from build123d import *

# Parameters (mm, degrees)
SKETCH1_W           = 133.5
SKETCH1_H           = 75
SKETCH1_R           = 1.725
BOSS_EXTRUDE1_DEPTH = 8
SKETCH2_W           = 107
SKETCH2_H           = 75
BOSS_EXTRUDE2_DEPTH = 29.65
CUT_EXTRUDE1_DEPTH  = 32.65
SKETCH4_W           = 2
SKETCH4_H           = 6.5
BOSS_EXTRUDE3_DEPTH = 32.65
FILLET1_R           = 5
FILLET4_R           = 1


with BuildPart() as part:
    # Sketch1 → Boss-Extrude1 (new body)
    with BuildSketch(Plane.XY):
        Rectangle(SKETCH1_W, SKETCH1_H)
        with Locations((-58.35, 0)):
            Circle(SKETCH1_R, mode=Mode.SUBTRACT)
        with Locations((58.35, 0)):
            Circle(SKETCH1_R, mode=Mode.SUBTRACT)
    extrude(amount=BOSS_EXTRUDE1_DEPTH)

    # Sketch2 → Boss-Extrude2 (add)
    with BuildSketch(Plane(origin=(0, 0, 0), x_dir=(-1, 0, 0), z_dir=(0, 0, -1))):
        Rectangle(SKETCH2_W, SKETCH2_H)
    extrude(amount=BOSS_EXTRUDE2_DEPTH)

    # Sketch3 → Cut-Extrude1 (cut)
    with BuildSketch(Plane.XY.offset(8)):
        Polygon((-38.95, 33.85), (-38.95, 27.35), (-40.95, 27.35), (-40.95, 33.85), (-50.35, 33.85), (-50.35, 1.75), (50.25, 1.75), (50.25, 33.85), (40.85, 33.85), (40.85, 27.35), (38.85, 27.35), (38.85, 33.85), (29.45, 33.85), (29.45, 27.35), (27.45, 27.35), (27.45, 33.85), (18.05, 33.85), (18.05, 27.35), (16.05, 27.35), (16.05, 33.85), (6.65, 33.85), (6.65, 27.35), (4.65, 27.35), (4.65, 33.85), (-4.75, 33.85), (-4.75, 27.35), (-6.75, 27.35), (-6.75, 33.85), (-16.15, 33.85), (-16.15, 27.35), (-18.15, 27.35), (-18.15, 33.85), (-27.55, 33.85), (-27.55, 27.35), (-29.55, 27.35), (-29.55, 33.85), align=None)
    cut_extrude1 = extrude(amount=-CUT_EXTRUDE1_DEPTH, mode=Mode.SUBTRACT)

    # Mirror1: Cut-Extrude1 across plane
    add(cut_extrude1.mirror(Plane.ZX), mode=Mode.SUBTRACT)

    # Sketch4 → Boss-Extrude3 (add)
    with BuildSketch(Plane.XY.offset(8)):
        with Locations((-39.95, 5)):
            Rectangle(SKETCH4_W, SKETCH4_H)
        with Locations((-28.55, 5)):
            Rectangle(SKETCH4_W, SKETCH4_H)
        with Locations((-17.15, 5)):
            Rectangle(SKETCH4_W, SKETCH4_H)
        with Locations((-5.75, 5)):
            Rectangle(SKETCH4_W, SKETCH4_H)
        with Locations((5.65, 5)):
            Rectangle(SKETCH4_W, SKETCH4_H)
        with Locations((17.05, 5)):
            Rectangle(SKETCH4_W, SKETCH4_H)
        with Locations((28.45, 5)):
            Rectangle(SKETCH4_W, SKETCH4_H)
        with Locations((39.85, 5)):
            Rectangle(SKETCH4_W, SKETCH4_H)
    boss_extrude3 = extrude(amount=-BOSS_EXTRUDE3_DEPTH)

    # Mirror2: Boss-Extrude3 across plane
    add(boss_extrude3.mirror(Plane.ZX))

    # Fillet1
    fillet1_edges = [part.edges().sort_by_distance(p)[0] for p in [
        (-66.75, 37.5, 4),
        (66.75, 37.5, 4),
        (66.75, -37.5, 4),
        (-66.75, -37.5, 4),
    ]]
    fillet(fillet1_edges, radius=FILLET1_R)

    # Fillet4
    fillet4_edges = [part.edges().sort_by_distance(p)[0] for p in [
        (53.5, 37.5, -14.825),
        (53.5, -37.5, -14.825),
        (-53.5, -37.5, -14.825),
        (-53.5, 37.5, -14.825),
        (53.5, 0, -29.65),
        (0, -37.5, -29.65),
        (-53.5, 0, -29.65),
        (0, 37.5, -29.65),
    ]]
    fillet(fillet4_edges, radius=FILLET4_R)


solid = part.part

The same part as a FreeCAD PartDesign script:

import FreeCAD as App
import Part
import Sketcher
from FreeCAD import Vector
Q = App.Units.Quantity


def edges_at(feature, points):
    """Names of the edges that pass closest to the given points."""
    edges = feature.Shape.Edges
    near = lambda p: min(range(len(edges)), key=lambda i: edges[i].distToShape(Part.Vertex(*p))[0])
    return sorted({f"Edge{near(p) + 1}" for p in points})

doc = App.newDocument("Part")
body = doc.addObject("PartDesign::Body", "Body")

sketch1 = body.newObject("Sketcher::SketchObject", "Sketch")
sketch1.AttachmentSupport = (doc.getObject("XY_Plane"), [""])
sketch1.MapMode = "FlatFace"
sketch1.addGeometry([
    Part.LineSegment(Vector(-66.8, 37.5, 0), Vector(-66.8, -37.5, 0)),
    Part.LineSegment(Vector(-66.8, -37.5, 0), Vector(66.8, -37.5, 0)),
    Part.LineSegment(Vector(66.8, -37.5, 0), Vector(66.8, 37.5, 0)),
    Part.LineSegment(Vector(66.8, 37.5, 0), Vector(-66.8, 37.5, 0)),
    Part.Circle(Vector(-58.4, 0, 0), Vector(0, 0, 1), 1.7),
    Part.Circle(Vector(58.4, 0, 0), Vector(0, 0, 1), 1.7),
], False)
sketch1.addConstraint([
    Sketcher.Constraint("Coincident", 0, 2, 1, 1),
    Sketcher.Constraint("Coincident", 1, 2, 2, 1),
    Sketcher.Constraint("Coincident", 2, 2, 3, 1),
    Sketcher.Constraint("Coincident", 3, 2, 0, 1),
    Sketcher.Constraint("Vertical", 0),
    Sketcher.Constraint("Horizontal", 1),
    Sketcher.Constraint("Vertical", 2),
    Sketcher.Constraint("Horizontal", 3),
    Sketcher.Constraint("Equal", 4, 5),
    Sketcher.Constraint("Symmetric", 4, 3, 5, 3, -1, 1),
    Sketcher.Constraint("Symmetric", 0, 2, 2, 2, -1, 1),
    Sketcher.Constraint("PointOnObject", 4, 3, -1),
    Sketcher.Constraint("Diameter", 4, Q("3.45 mm")),
    Sketcher.Constraint("DistanceY", 0, 2, 0, 1, Q("75 mm")),
    Sketcher.Constraint("DistanceX", 1, 1, 1, 2, Q("133.5 mm")),
    Sketcher.Constraint("DistanceX", 4, 3, 5, 3, Q("116.7 mm")),
])
pad1 = body.newObject("PartDesign::Pad", "Pad")
pad1.Profile = sketch1
pad1.Length = 8

sketch2 = body.newObject("Sketcher::SketchObject", "Sketch001")
sketch2.AttachmentSupport = (doc.getObject("XY_Plane"), [""])
sketch2.MapMode = "FlatFace"
sketch2.addGeometry([
    Part.LineSegment(Vector(54, 38, 0), Vector(54, -38, 0)),
    Part.LineSegment(Vector(54, -38, 0), Vector(-54, -38, 0)),
    Part.LineSegment(Vector(-54, -38, 0), Vector(-54, 38, 0)),
    Part.LineSegment(Vector(-54, 38, 0), Vector(54, 38, 0)),
], False)
sketch2.addConstraint([
    Sketcher.Constraint("Coincident", 0, 2, 1, 1),
    Sketcher.Constraint("Coincident", 1, 2, 2, 1),
    Sketcher.Constraint("Coincident", 2, 2, 3, 1),
    Sketcher.Constraint("Coincident", 3, 2, 0, 1),
    Sketcher.Constraint("Vertical", 0),
    Sketcher.Constraint("Horizontal", 1),
    Sketcher.Constraint("Vertical", 2),
    Sketcher.Constraint("Horizontal", 3),
    Sketcher.Constraint("Symmetric", 0, 2, 2, 2, -1, 1),
    Sketcher.Constraint("DistanceX", 1, 2, 1, 1, Q("107 mm")),
    Sketcher.Constraint("DistanceY", 0, 2, 0, 1, Q("75 mm")),
])
pad2 = body.newObject("PartDesign::Pad", "Pad001")
pad2.Profile = sketch2
pad2.Length = 29.65
pad2.Reversed = True

sketch3 = body.newObject("Sketcher::SketchObject", "Sketch002")
sketch3.AttachmentSupport = (doc.getObject("XY_Plane"), [""])
sketch3.MapMode = "FlatFace"
sketch3.AttachmentOffset = App.Placement(Vector(0, 0, 8), App.Rotation())
sketch3.addGeometry([
    Part.LineSegment(Vector(-39, 33.9, 0), Vector(-39, 27.4, 0)),
    Part.LineSegment(Vector(-39, 27.4, 0), Vector(-41, 27.4, 0)),
    Part.LineSegment(Vector(-41, 27.4, 0), Vector(-41, 33.9, 0)),
    Part.LineSegment(Vector(-41, 33.9, 0), Vector(-50.4, 33.9, 0)),
    Part.LineSegment(Vector(-50.4, 33.9, 0), Vector(-50.4, 1.8, 0)),
    Part.LineSegment(Vector(-50.4, 1.8, 0), Vector(50.2, 1.8, 0)),
    Part.LineSegment(Vector(50.2, 1.8, 0), Vector(50.2, 33.9, 0)),
    Part.LineSegment(Vector(50.2, 33.9, 0), Vector(40.9, 33.9, 0)),
    Part.LineSegment(Vector(40.9, 33.9, 0), Vector(40.9, 27.4, 0)),
    Part.LineSegment(Vector(40.9, 27.4, 0), Vector(38.9, 27.4, 0)),
    Part.LineSegment(Vector(38.9, 27.4, 0), Vector(38.9, 33.9, 0)),
    Part.LineSegment(Vector(38.9, 33.9, 0), Vector(29.4, 33.9, 0)),
    Part.LineSegment(Vector(29.4, 33.9, 0), Vector(29.4, 27.4, 0)),
    Part.LineSegment(Vector(29.4, 27.4, 0), Vector(27.4, 27.4, 0)),
    Part.LineSegment(Vector(27.4, 27.4, 0), Vector(27.4, 33.9, 0)),
    Part.LineSegment(Vector(27.4, 33.9, 0), Vector(18.1, 33.9, 0)),
    Part.LineSegment(Vector(18.1, 33.9, 0), Vector(18.1, 27.4, 0)),
    Part.LineSegment(Vector(18.1, 27.4, 0), Vector(16.1, 27.4, 0)),
    Part.LineSegment(Vector(16.1, 27.4, 0), Vector(16.1, 33.9, 0)),
    Part.LineSegment(Vector(16.1, 33.9, 0), Vector(6.7, 33.9, 0)),
    Part.LineSegment(Vector(6.7, 33.9, 0), Vector(6.7, 27.4, 0)),
    Part.LineSegment(Vector(6.7, 27.4, 0), Vector(4.7, 27.4, 0)),
    Part.LineSegment(Vector(4.7, 27.4, 0), Vector(4.7, 33.9, 0)),
    Part.LineSegment(Vector(4.7, 33.9, 0), Vector(-4.8, 33.9, 0)),
    Part.LineSegment(Vector(-4.8, 33.9, 0), Vector(-4.8, 27.4, 0)),
    Part.LineSegment(Vector(-4.8, 27.4, 0), Vector(-6.8, 27.4, 0)),
    Part.LineSegment(Vector(-6.8, 27.4, 0), Vector(-6.8, 33.9, 0)),
    Part.LineSegment(Vector(-6.8, 33.9, 0), Vector(-16.1, 33.9, 0)),
    Part.LineSegment(Vector(-16.1, 33.9, 0), Vector(-16.1, 27.4, 0)),
    Part.LineSegment(Vector(-16.1, 27.4, 0), Vector(-18.1, 27.4, 0)),
    Part.LineSegment(Vector(-18.1, 27.4, 0), Vector(-18.1, 33.9, 0)),
    Part.LineSegment(Vector(-18.1, 33.9, 0), Vector(-27.6, 33.9, 0)),
    Part.LineSegment(Vector(-27.6, 33.9, 0), Vector(-27.6, 27.4, 0)),
    Part.LineSegment(Vector(-27.6, 27.4, 0), Vector(-29.6, 27.4, 0)),
    Part.LineSegment(Vector(-29.6, 27.4, 0), Vector(-29.6, 33.9, 0)),
    Part.LineSegment(Vector(-29.6, 33.9, 0), Vector(-39, 33.9, 0)),
], False)
sketch3.addConstraint([
    Sketcher.Constraint("Coincident", 0, 2, 1, 1),
    Sketcher.Constraint("Coincident", 1, 2, 2, 1),
    Sketcher.Constraint("Coincident", 2, 2, 3, 1),
    Sketcher.Constraint("Coincident", 3, 2, 4, 1),
    Sketcher.Constraint("Coincident", 4, 2, 5, 1),
    Sketcher.Constraint("Coincident", 5, 2, 6, 1),
    Sketcher.Constraint("Coincident", 6, 2, 7, 1),
    Sketcher.Constraint("Coincident", 7, 2, 8, 1),
    Sketcher.Constraint("Coincident", 8, 2, 9, 1),
    Sketcher.Constraint("Coincident", 9, 2, 10, 1),
    Sketcher.Constraint("Coincident", 10, 2, 11, 1),
    Sketcher.Constraint("Coincident", 11, 2, 12, 1),
    Sketcher.Constraint("Coincident", 12, 2, 13, 1),
    Sketcher.Constraint("Coincident", 13, 2, 14, 1),
    Sketcher.Constraint("Coincident", 14, 2, 15, 1),
    Sketcher.Constraint("Coincident", 15, 2, 16, 1),
    Sketcher.Constraint("Coincident", 16, 2, 17, 1),
    Sketcher.Constraint("Coincident", 17, 2, 18, 1),
    Sketcher.Constraint("Coincident", 18, 2, 19, 1),
    Sketcher.Constraint("Coincident", 19, 2, 20, 1),
    Sketcher.Constraint("Coincident", 20, 2, 21, 1),
    Sketcher.Constraint("Coincident", 21, 2, 22, 1),
    Sketcher.Constraint("Coincident", 22, 2, 23, 1),
    Sketcher.Constraint("Coincident", 23, 2, 24, 1),
    Sketcher.Constraint("Coincident", 24, 2, 25, 1),
    Sketcher.Constraint("Coincident", 25, 2, 26, 1),
    Sketcher.Constraint("Coincident", 26, 2, 27, 1),
    Sketcher.Constraint("Coincident", 27, 2, 28, 1),
    Sketcher.Constraint("Coincident", 28, 2, 29, 1),
    Sketcher.Constraint("Coincident", 29, 2, 30, 1),
    Sketcher.Constraint("Coincident", 30, 2, 31, 1),
    Sketcher.Constraint("Coincident", 31, 2, 32, 1),
    Sketcher.Constraint("Coincident", 32, 2, 33, 1),
    Sketcher.Constraint("Coincident", 33, 2, 34, 1),
    Sketcher.Constraint("Coincident", 34, 2, 35, 1),
    Sketcher.Constraint("Coincident", 35, 2, 0, 1),
    Sketcher.Constraint("Vertical", 0),
    Sketcher.Constraint("Horizontal", 1),
    Sketcher.Constraint("Vertical", 2),
    Sketcher.Constraint("Horizontal", 3),
    Sketcher.Constraint("Vertical", 4),
    Sketcher.Constraint("Horizontal", 5),
    Sketcher.Constraint("Vertical", 6),
    Sketcher.Constraint("Horizontal", 7),
    Sketcher.Constraint("Vertical", 8),
    Sketcher.Constraint("Horizontal", 9),
    Sketcher.Constraint("Vertical", 10),
    Sketcher.Constraint("Horizontal", 11),
    Sketcher.Constraint("Vertical", 12),
    Sketcher.Constraint("Horizontal", 13),
    Sketcher.Constraint("Vertical", 14),
    Sketcher.Constraint("Horizontal", 15),
    Sketcher.Constraint("Vertical", 16),
    Sketcher.Constraint("Horizontal", 17),
    Sketcher.Constraint("Vertical", 18),
    Sketcher.Constraint("Horizontal", 19),
    Sketcher.Constraint("Vertical", 20),
    Sketcher.Constraint("Horizontal", 21),
    Sketcher.Constraint("Vertical", 22),
    Sketcher.Constraint("Horizontal", 23),
    Sketcher.Constraint("Vertical", 24),
    Sketcher.Constraint("Horizontal", 25),
    Sketcher.Constraint("Vertical", 26),
    Sketcher.Constraint("Horizontal", 27),
    Sketcher.Constraint("Vertical", 28),
    Sketcher.Constraint("Horizontal", 29),
    Sketcher.Constraint("Vertical", 30),
    Sketcher.Constraint("Horizontal", 31),
    Sketcher.Constraint("Vertical", 32),
    Sketcher.Constraint("Horizontal", 33),
    Sketcher.Constraint("Vertical", 34),
    Sketcher.Constraint("Horizontal", 35),
    Sketcher.Constraint("Horizontal", 3, 2, 6, 2),
    Sketcher.Constraint("Horizontal", 1, 2, 8, 2),
    Sketcher.Constraint("Horizontal", 7, 2, 10, 2),
    Sketcher.Constraint("Horizontal", 9, 2, 12, 2),
    Sketcher.Constraint("Horizontal", 11, 2, 14, 2),
    Sketcher.Constraint("Horizontal", 13, 2, 16, 2),
    Sketcher.Constraint("Horizontal", 15, 2, 18, 2),
    Sketcher.Constraint("Horizontal", 17, 2, 20, 2),
    Sketcher.Constraint("Horizontal", 19, 2, 22, 2),
    Sketcher.Constraint("Horizontal", 21, 2, 24, 2),
    Sketcher.Constraint("Horizontal", 23, 2, 26, 2),
    Sketcher.Constraint("Horizontal", 25, 2, 28, 2),
    Sketcher.Constraint("Horizontal", 27, 2, 30, 2),
    Sketcher.Constraint("Horizontal", 29, 2, 32, 2),
    Sketcher.Constraint("Horizontal", 31, 2, 34, 2),
    Sketcher.Constraint("Equal", 3, 7),
    Sketcher.Constraint("Equal", 1, 9),
    Sketcher.Constraint("Equal", 7, 11),
    Sketcher.Constraint("Equal", 9, 13),
    Sketcher.Constraint("Equal", 11, 15),
    Sketcher.Constraint("Equal", 13, 17),
    Sketcher.Constraint("Equal", 15, 19),
    Sketcher.Constraint("Equal", 17, 21),
    Sketcher.Constraint("Equal", 19, 23),
    Sketcher.Constraint("Equal", 21, 25),
    Sketcher.Constraint("Equal", 23, 27),
    Sketcher.Constraint("Equal", 25, 29),
    Sketcher.Constraint("Equal", 27, 31),
    Sketcher.Constraint("Equal", 29, 33),
    Sketcher.Constraint("Equal", 31, 35),
    Sketcher.Constraint("DistanceX", 1, 2, 1, 1, Q("2 mm")),
    Sketcher.Constraint("DistanceX", 3, 2, 3, 1, Q("9.4 mm")),
    Sketcher.Constraint("DistanceY", 0, 2, 0, 1, Q("6.5 mm")),
    Sketcher.Constraint("DistanceY", 4, 2, 4, 1, Q("32.1 mm")),
    Sketcher.Constraint("DistanceX", 0, 2, -1, 1, Q("38.95 mm")),
    Sketcher.Constraint("DistanceY", -1, 1, 0, 2, Q("27.35 mm")),
])
pocket1 = body.newObject("PartDesign::Pocket", "Pocket")
pocket1.Profile = sketch3
pocket1.Length = 32.65
doc.recompute()

mirrored = body.newObject("PartDesign::Mirrored", "Mirrored")
mirrored.Originals = [pocket1]
mirrored.MirrorPlane = (doc.getObject("XZ_Plane"), [""])
body.Tip = mirrored

sketch4 = body.newObject("Sketcher::SketchObject", "Sketch003")
sketch4.AttachmentSupport = (doc.getObject("XY_Plane"), [""])
sketch4.MapMode = "FlatFace"
sketch4.AttachmentOffset = App.Placement(Vector(0, 0, 8), App.Rotation())
sketch4.addGeometry([
    Part.LineSegment(Vector(-41, 8.2, 0), Vector(-41, 1.8, 0)),
    Part.LineSegment(Vector(-41, 1.8, 0), Vector(-39, 1.8, 0)),
    Part.LineSegment(Vector(-39, 1.8, 0), Vector(-39, 8.2, 0)),
    Part.LineSegment(Vector(-39, 8.2, 0), Vector(-41, 8.2, 0)),
    Part.LineSegment(Vector(-29.6, 8.2, 0), Vector(-29.6, 1.8, 0)),
    Part.LineSegment(Vector(-29.6, 1.8, 0), Vector(-27.6, 1.8, 0)),
    Part.LineSegment(Vector(-27.6, 1.8, 0), Vector(-27.6, 8.2, 0)),
    Part.LineSegment(Vector(-27.6, 8.2, 0), Vector(-29.6, 8.2, 0)),
    Part.LineSegment(Vector(-18.1, 8.2, 0), Vector(-18.1, 1.8, 0)),
    Part.LineSegment(Vector(-18.1, 1.8, 0), Vector(-16.1, 1.8, 0)),
    Part.LineSegment(Vector(-16.1, 1.8, 0), Vector(-16.1, 8.2, 0)),
    Part.LineSegment(Vector(-16.1, 8.2, 0), Vector(-18.1, 8.2, 0)),
    Part.LineSegment(Vector(-6.8, 8.2, 0), Vector(-6.8, 1.8, 0)),
    Part.LineSegment(Vector(-6.8, 1.8, 0), Vector(-4.8, 1.8, 0)),
    Part.LineSegment(Vector(-4.8, 1.8, 0), Vector(-4.8, 8.2, 0)),
    Part.LineSegment(Vector(-4.8, 8.2, 0), Vector(-6.8, 8.2, 0)),
    Part.LineSegment(Vector(4.7, 8.2, 0), Vector(4.7, 1.8, 0)),
    Part.LineSegment(Vector(4.7, 1.8, 0), Vector(6.7, 1.8, 0)),
    Part.LineSegment(Vector(6.7, 1.8, 0), Vector(6.7, 8.2, 0)),
    Part.LineSegment(Vector(6.7, 8.2, 0), Vector(4.7, 8.2, 0)),
    Part.LineSegment(Vector(16.1, 8.2, 0), Vector(16.1, 1.8, 0)),
    Part.LineSegment(Vector(16.1, 1.8, 0), Vector(18.1, 1.8, 0)),
    Part.LineSegment(Vector(18.1, 1.8, 0), Vector(18.1, 8.2, 0)),
    Part.LineSegment(Vector(18.1, 8.2, 0), Vector(16.1, 8.2, 0)),
    Part.LineSegment(Vector(27.4, 8.2, 0), Vector(27.4, 1.8, 0)),
    Part.LineSegment(Vector(27.4, 1.8, 0), Vector(29.4, 1.8, 0)),
    Part.LineSegment(Vector(29.4, 1.8, 0), Vector(29.4, 8.2, 0)),
    Part.LineSegment(Vector(29.4, 8.2, 0), Vector(27.4, 8.2, 0)),
    Part.LineSegment(Vector(38.9, 8.2, 0), Vector(38.9, 1.8, 0)),
    Part.LineSegment(Vector(38.9, 1.8, 0), Vector(40.9, 1.8, 0)),
    Part.LineSegment(Vector(40.9, 1.8, 0), Vector(40.9, 8.2, 0)),
    Part.LineSegment(Vector(40.9, 8.2, 0), Vector(38.9, 8.2, 0)),
], False)
sketch4.addConstraint([
    Sketcher.Constraint("Coincident", 0, 2, 1, 1),
    Sketcher.Constraint("Coincident", 1, 2, 2, 1),
    Sketcher.Constraint("Coincident", 2, 2, 3, 1),
    Sketcher.Constraint("Coincident", 3, 2, 0, 1),
    Sketcher.Constraint("Coincident", 4, 2, 5, 1),
    Sketcher.Constraint("Coincident", 5, 2, 6, 1),
    Sketcher.Constraint("Coincident", 6, 2, 7, 1),
    Sketcher.Constraint("Coincident", 7, 2, 4, 1),
    Sketcher.Constraint("Coincident", 8, 2, 9, 1),
    Sketcher.Constraint("Coincident", 9, 2, 10, 1),
    Sketcher.Constraint("Coincident", 10, 2, 11, 1),
    Sketcher.Constraint("Coincident", 11, 2, 8, 1),
    Sketcher.Constraint("Coincident", 12, 2, 13, 1),
    Sketcher.Constraint("Coincident", 13, 2, 14, 1),
    Sketcher.Constraint("Coincident", 14, 2, 15, 1),
    Sketcher.Constraint("Coincident", 15, 2, 12, 1),
    Sketcher.Constraint("Coincident", 16, 2, 17, 1),
    Sketcher.Constraint("Coincident", 17, 2, 18, 1),
    Sketcher.Constraint("Coincident", 18, 2, 19, 1),
    Sketcher.Constraint("Coincident", 19, 2, 16, 1),
    Sketcher.Constraint("Coincident", 20, 2, 21, 1),
    Sketcher.Constraint("Coincident", 21, 2, 22, 1),
    Sketcher.Constraint("Coincident", 22, 2, 23, 1),
    Sketcher.Constraint("Coincident", 23, 2, 20, 1),
    Sketcher.Constraint("Coincident", 24, 2, 25, 1),
    Sketcher.Constraint("Coincident", 25, 2, 26, 1),
    Sketcher.Constraint("Coincident", 26, 2, 27, 1),
    Sketcher.Constraint("Coincident", 27, 2, 24, 1),
    Sketcher.Constraint("Coincident", 28, 2, 29, 1),
    Sketcher.Constraint("Coincident", 29, 2, 30, 1),
    Sketcher.Constraint("Coincident", 30, 2, 31, 1),
    Sketcher.Constraint("Coincident", 31, 2, 28, 1),
    Sketcher.Constraint("Vertical", 0),
    Sketcher.Constraint("Horizontal", 1),
    Sketcher.Constraint("Vertical", 2),
    Sketcher.Constraint("Horizontal", 3),
    Sketcher.Constraint("Vertical", 4),
    Sketcher.Constraint("Horizontal", 5),
    Sketcher.Constraint("Vertical", 6),
    Sketcher.Constraint("Horizontal", 7),
    Sketcher.Constraint("Vertical", 8),
    Sketcher.Constraint("Horizontal", 9),
    Sketcher.Constraint("Vertical", 10),
    Sketcher.Constraint("Horizontal", 11),
    Sketcher.Constraint("Vertical", 12),
    Sketcher.Constraint("Horizontal", 13),
    Sketcher.Constraint("Vertical", 14),
    Sketcher.Constraint("Horizontal", 15),
    Sketcher.Constraint("Vertical", 16),
    Sketcher.Constraint("Horizontal", 17),
    Sketcher.Constraint("Vertical", 18),
    Sketcher.Constraint("Horizontal", 19),
    Sketcher.Constraint("Vertical", 20),
    Sketcher.Constraint("Horizontal", 21),
    Sketcher.Constraint("Vertical", 22),
    Sketcher.Constraint("Horizontal", 23),
    Sketcher.Constraint("Vertical", 24),
    Sketcher.Constraint("Horizontal", 25),
    Sketcher.Constraint("Vertical", 26),
    Sketcher.Constraint("Horizontal", 27),
    Sketcher.Constraint("Vertical", 28),
    Sketcher.Constraint("Horizontal", 29),
    Sketcher.Constraint("Vertical", 30),
    Sketcher.Constraint("Horizontal", 31),
    Sketcher.Constraint("Horizontal", 1, 2, 4, 2),
    Sketcher.Constraint("Horizontal", 3, 2, 6, 2),
    Sketcher.Constraint("Horizontal", 5, 2, 8, 2),
    Sketcher.Constraint("Horizontal", 7, 2, 10, 2),
    Sketcher.Constraint("Horizontal", 9, 2, 12, 2),
    Sketcher.Constraint("Horizontal", 11, 2, 14, 2),
    Sketcher.Constraint("Horizontal", 13, 2, 16, 2),
    Sketcher.Constraint("Horizontal", 15, 2, 18, 2),
    Sketcher.Constraint("Horizontal", 17, 2, 20, 2),
    Sketcher.Constraint("Horizontal", 19, 2, 22, 2),
    Sketcher.Constraint("Horizontal", 21, 2, 24, 2),
    Sketcher.Constraint("Horizontal", 23, 2, 26, 2),
    Sketcher.Constraint("Horizontal", 25, 2, 28, 2),
    Sketcher.Constraint("Horizontal", 27, 2, 30, 2),
    Sketcher.Constraint("Equal", 3, 5),
    Sketcher.Constraint("Equal", 7, 9),
    Sketcher.Constraint("Equal", 11, 13),
    Sketcher.Constraint("Equal", 15, 17),
    Sketcher.Constraint("Equal", 19, 21),
    Sketcher.Constraint("Equal", 23, 25),
    Sketcher.Constraint("Equal", 27, 29),
    Sketcher.Constraint("DistanceX", 1, 1, 1, 2, Q("2 mm")),
    Sketcher.Constraint("DistanceY", 0, 2, 0, 1, Q("6.5 mm")),
    Sketcher.Constraint("DistanceX", 1, 2, 4, 2, Q("9.4 mm")),
    Sketcher.Constraint("DistanceX", 5, 2, 8, 2, Q("9.4 mm")),
    Sketcher.Constraint("DistanceX", 9, 2, 12, 2, Q("9.4 mm")),
    Sketcher.Constraint("DistanceX", 13, 2, 16, 2, Q("9.4 mm")),
    Sketcher.Constraint("DistanceX", 17, 2, 20, 2, Q("9.4 mm")),
    Sketcher.Constraint("DistanceX", 21, 2, 24, 2, Q("9.4 mm")),
    Sketcher.Constraint("DistanceX", 25, 2, 28, 2, Q("9.4 mm")),
    Sketcher.Constraint("DistanceX", 0, 2, -1, 1, Q("40.95 mm")),
    Sketcher.Constraint("DistanceY", -1, 1, 0, 2, Q("1.75 mm")),
])
pad3 = body.newObject("PartDesign::Pad", "Pad002")
pad3.Profile = sketch4
pad3.Length = 32.65
pad3.Reversed = True
doc.recompute()

mirrored2 = body.newObject("PartDesign::Mirrored", "Mirrored001")
mirrored2.Originals = [pad3]
mirrored2.MirrorPlane = (doc.getObject("XZ_Plane"), [""])
body.Tip = mirrored2
doc.recompute()

fillet = body.newObject("PartDesign::Fillet", "Fillet")
fillet.Base = (mirrored2, edges_at(mirrored2, [
    (-66.75, 37.5, 4),
    (66.75, 37.5, 4),
    (66.75, -37.5, 4),
    (-66.75, -37.5, 4),
]))
fillet.Radius = 5
doc.recompute()

fillet2 = body.newObject("PartDesign::Fillet", "Fillet001")
fillet2.Base = (fillet, edges_at(fillet, [
    (53.5, 37.5, -14.825),
    (53.5, -37.5, -14.825),
    (-53.5, -37.5, -14.825),
    (-53.5, 37.5, -14.825),
    (53.5, 0, -29.65),
    (0, -37.5, -29.65),
    (-53.5, 0, -29.65),
    (0, 37.5, -29.65),
]))
fillet2.Radius = 1

doc.recompute()
